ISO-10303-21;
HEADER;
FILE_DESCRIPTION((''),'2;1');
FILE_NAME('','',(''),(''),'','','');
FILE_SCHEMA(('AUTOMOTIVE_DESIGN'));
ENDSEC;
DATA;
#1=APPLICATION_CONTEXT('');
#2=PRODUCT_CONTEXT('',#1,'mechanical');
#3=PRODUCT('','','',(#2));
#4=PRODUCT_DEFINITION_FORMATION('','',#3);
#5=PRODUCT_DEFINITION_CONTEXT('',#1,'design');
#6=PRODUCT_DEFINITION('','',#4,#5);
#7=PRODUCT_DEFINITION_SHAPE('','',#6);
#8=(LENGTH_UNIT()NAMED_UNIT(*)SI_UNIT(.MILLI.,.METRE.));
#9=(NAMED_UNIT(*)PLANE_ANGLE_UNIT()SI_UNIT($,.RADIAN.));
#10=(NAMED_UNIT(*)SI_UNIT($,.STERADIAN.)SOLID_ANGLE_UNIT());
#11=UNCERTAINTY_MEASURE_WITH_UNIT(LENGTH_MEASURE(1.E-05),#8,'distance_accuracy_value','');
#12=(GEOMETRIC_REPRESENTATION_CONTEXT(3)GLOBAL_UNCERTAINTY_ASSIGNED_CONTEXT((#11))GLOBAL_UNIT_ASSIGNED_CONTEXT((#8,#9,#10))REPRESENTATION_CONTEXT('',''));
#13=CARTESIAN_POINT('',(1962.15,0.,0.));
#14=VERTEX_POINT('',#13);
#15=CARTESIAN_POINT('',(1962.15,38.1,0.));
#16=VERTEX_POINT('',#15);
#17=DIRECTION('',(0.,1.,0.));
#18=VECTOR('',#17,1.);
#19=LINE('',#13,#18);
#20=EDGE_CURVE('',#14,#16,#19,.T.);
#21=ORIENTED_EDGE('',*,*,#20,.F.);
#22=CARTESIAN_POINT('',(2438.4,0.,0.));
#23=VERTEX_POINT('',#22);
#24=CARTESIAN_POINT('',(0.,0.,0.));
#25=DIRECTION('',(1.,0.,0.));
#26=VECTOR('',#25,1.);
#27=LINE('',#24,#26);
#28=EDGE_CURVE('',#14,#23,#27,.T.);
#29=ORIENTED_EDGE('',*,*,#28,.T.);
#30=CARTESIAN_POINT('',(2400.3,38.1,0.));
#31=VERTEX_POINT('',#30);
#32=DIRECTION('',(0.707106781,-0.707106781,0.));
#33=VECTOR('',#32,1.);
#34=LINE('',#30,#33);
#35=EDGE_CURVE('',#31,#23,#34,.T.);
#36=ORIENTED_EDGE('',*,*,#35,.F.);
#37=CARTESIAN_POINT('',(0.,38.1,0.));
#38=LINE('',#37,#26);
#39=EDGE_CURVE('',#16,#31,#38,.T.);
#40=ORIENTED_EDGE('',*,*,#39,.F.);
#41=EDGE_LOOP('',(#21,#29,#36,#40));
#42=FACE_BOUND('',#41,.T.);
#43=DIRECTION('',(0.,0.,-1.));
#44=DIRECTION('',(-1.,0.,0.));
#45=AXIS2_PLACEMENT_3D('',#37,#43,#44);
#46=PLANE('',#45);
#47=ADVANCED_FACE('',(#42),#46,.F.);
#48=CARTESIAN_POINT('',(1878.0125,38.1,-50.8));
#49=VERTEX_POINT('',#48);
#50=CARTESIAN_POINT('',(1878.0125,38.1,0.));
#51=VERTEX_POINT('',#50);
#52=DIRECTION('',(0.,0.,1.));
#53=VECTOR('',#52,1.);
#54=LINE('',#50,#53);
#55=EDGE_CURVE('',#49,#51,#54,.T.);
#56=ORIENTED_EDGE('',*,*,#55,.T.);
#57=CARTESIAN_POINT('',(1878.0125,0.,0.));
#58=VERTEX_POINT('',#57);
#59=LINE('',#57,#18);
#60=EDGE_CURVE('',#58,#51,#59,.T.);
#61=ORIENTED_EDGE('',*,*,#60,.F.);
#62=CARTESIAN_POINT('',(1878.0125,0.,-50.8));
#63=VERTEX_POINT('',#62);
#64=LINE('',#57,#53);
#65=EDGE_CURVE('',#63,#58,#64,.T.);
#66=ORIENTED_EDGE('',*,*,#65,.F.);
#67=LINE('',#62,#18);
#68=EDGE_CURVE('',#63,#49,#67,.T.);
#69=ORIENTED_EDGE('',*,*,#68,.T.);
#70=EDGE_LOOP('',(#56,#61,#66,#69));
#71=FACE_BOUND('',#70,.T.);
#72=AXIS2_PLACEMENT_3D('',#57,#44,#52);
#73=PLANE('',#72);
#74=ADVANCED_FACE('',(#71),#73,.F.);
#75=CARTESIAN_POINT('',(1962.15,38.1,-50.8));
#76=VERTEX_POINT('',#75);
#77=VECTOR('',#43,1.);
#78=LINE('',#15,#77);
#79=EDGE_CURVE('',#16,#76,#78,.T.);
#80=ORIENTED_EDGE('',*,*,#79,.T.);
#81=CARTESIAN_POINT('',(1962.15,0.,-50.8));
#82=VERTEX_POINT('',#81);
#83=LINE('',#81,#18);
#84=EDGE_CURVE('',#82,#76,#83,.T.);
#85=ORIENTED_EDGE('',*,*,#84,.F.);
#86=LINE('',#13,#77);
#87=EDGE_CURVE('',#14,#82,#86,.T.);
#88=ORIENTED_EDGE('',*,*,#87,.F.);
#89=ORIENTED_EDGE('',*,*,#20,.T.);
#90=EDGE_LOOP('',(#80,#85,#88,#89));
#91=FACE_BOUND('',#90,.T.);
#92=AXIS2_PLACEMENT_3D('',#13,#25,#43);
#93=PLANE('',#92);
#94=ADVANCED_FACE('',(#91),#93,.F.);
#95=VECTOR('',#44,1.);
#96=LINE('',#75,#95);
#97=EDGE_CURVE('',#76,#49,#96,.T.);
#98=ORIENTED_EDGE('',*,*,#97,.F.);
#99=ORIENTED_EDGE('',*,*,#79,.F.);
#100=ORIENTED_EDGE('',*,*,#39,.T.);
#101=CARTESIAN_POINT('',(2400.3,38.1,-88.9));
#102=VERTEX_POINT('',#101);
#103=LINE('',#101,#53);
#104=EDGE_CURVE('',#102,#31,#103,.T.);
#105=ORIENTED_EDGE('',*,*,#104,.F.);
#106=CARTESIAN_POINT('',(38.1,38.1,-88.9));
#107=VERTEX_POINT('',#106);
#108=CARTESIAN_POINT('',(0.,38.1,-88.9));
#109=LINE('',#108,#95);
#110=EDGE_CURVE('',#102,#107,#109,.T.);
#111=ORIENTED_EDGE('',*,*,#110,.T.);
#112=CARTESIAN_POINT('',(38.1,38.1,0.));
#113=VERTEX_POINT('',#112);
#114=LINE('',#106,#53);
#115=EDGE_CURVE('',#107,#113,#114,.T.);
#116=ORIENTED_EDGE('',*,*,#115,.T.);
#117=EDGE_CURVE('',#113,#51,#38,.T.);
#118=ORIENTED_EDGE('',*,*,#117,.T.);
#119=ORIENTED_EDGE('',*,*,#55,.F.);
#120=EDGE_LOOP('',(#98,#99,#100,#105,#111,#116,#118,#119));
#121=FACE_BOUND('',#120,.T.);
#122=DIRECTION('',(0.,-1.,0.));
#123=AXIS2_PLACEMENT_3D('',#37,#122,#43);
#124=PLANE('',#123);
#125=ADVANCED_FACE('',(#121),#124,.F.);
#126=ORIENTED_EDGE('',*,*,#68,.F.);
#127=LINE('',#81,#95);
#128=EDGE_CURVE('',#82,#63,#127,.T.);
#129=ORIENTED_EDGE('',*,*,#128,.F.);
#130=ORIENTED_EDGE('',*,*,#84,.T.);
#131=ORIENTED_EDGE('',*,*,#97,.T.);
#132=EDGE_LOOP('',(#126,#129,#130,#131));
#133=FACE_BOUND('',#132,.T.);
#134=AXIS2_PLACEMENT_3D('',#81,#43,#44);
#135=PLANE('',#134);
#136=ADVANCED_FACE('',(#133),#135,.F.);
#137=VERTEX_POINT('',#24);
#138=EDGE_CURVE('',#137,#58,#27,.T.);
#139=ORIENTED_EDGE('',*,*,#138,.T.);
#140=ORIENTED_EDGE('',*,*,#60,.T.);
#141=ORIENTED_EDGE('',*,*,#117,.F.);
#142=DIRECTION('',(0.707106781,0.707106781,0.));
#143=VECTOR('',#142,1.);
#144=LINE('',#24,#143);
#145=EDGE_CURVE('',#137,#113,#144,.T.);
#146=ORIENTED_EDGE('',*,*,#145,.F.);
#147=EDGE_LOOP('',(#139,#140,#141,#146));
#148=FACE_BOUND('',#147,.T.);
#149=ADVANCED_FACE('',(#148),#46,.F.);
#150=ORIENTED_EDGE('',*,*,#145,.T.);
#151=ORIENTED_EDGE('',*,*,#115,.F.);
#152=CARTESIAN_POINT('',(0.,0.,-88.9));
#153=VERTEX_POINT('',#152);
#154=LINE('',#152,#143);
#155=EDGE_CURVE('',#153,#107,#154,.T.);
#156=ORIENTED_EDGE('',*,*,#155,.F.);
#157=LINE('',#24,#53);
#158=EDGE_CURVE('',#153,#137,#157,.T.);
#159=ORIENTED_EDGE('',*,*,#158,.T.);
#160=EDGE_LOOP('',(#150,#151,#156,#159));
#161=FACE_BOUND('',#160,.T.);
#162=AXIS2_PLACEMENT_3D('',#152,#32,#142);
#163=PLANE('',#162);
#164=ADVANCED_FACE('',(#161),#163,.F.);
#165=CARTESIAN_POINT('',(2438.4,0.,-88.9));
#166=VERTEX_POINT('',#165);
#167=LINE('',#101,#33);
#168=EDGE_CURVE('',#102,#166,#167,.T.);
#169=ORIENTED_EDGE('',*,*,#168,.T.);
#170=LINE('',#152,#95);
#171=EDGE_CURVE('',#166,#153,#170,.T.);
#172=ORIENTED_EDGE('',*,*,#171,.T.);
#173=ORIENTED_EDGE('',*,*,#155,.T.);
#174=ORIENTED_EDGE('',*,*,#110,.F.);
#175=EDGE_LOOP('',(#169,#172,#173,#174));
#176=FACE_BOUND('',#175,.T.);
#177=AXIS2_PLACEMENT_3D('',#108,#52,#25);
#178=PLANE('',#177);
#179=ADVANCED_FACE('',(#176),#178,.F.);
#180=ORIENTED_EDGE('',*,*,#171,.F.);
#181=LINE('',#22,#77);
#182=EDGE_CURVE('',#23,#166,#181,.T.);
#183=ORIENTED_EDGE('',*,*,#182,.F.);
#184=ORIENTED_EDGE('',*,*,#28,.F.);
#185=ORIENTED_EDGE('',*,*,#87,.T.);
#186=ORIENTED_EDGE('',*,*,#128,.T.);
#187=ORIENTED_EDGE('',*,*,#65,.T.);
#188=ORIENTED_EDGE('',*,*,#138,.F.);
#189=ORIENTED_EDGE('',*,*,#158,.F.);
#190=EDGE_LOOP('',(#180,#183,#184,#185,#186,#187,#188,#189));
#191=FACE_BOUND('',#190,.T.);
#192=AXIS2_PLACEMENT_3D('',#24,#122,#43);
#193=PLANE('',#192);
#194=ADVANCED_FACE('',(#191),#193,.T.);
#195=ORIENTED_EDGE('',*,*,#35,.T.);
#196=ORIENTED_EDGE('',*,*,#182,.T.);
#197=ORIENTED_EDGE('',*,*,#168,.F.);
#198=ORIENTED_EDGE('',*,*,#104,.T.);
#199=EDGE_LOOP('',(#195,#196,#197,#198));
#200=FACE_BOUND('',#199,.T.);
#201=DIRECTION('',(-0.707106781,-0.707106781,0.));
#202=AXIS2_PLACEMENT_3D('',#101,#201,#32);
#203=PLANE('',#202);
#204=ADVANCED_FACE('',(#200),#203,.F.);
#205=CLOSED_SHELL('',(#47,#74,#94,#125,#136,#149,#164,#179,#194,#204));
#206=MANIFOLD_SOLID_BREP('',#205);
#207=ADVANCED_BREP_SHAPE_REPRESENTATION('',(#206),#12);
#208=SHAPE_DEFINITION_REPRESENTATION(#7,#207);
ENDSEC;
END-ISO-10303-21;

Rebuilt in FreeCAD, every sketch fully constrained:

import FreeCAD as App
import Part
import Sketcher
Q = App.Units.Quantity


def add_polygon(sketch, points):
    """Adds a closed chain of lines whose ends are joined by coincident constraints."""
    first, n = sketch.GeometryCount, len(points)
    for a, b in zip(points, points[1:] + points[:1]):
        sketch.addGeometry(Part.LineSegment(App.Vector(*a, 0), App.Vector(*b, 0)), False)
    for i in range(n):
        sketch.addConstraint(Sketcher.Constraint("Coincident", first + i, 2, first + (i + 1) % n, 1))

doc = App.newDocument("Part")
body = doc.addObject("PartDesign::Body", "Body")

# Sketch on XZ plane
sketch1 = doc.addObject("Sketcher::SketchObject", "Sketch")
body.addObject(sketch1)
sketch1.AttachmentSupport = (doc.XZ_Plane, [""])
sketch1.MapMode = "FlatFace"
add_polygon(sketch1, [(0, -88.9), (0, 0), (2438.4, 0), (2438.4, -88.9)])  # lines 0-3
sketch1.addConstraint(Sketcher.Constraint("Vertical", 0))
sketch1.addConstraint(Sketcher.Constraint("Horizontal", 1))
sketch1.addConstraint(Sketcher.Constraint("Vertical", 2))
sketch1.addConstraint(Sketcher.Constraint("Horizontal", 3))
sketch1.addConstraint(Sketcher.Constraint("Coincident", 0, 2, -1, 1))
sketch1.addConstraint(Sketcher.Constraint("DistanceX", 1, 1, 1, 2, Q("96 in")))
sketch1.addConstraint(Sketcher.Constraint("DistanceY", 0, 1, 0, 2, Q("3.5 in")))
pad1 = doc.addObject("PartDesign::Pad", "Pad")
body.addObject(pad1)
pad1.Profile = sketch1
pad1.Length = Q("1.5 in")
pad1.Reversed = True

# Sketch on XY plane
sketch2 = doc.addObject("Sketcher::SketchObject", "Sketch001")
body.addObject(sketch2)
sketch2.AttachmentSupport = (doc.XY_Plane, [""])
sketch2.MapMode = "FlatFace"
add_polygon(sketch2, [(0, 0), (38.1, 38.1), (0, 38.1)])  # lines 0-2
add_polygon(sketch2, [(2438.4, 0), (2438.4, 38.1), (2400.3, 38.1)])  # lines 3-5
sketch2.addConstraint(Sketcher.Constraint("Horizontal", 1))
sketch2.addConstraint(Sketcher.Constraint("Vertical", 2))
sketch2.addConstraint(Sketcher.Constraint("Vertical", 3))
sketch2.addConstraint(Sketcher.Constraint("Horizontal", 4))
sketch2.addConstraint(Sketcher.Constraint("Coincident", 2, 2, -1, 1))
sketch2.addConstraint(Sketcher.Constraint("PointOnObject", 5, 2, -1))
sketch2.addConstraint(Sketcher.Constraint("Perpendicular", 0, 5))
sketch2.addConstraint(Sketcher.Constraint("Horizontal", 1, 2, 3, 2))
sketch2.addConstraint(Sketcher.Constraint("Equal", 1, 4))
sketch2.addConstraint(Sketcher.Constraint("DistanceX", 1, 2, 1, 1, Q("1.5 in")))
sketch2.addConstraint(Sketcher.Constraint("DistanceX", -1, 1, 3, 2, Q("96 in")))
pocket1 = doc.addObject("PartDesign::Pocket", "Pocket")
body.addObject(pocket1)
pocket1.Profile = sketch2
pocket1.Type = "ThroughAll"

# Sketch on XZ plane
sketch3 = doc.addObject("Sketcher::SketchObject", "Sketch002")
body.addObject(sketch3)
sketch3.AttachmentSupport = (doc.XZ_Plane, [""])
sketch3.MapMode = "FlatFace"
sketch3.AttachmentOffset = App.Placement(App.Vector(0, 0, -1.5 * 25.4), App.Rotation())
add_polygon(sketch3, [(1878.0125, -50.8), (1878.0125, 0), (1962.15, 0), (1962.15, -50.8)])  # lines 0-3
sketch3.addConstraint(Sketcher.Constraint("Vertical", 0))
sketch3.addConstraint(Sketcher.Constraint("Horizontal", 1))
sketch3.addConstraint(Sketcher.Constraint("Vertical", 2))
sketch3.addConstraint(Sketcher.Constraint("Horizontal", 3))
sketch3.addConstraint(Sketcher.Constraint("PointOnObject", 0, 2, -1))
sketch3.addConstraint(Sketcher.Constraint("DistanceY", 0, 1, 0, 2, Q("2 in")))
sketch3.addConstraint(Sketcher.Constraint("DistanceX", 1, 1, 1, 2, Q("3.3125 in")))
sketch3.addConstraint(Sketcher.Constraint("DistanceX", -1, 1, 1, 2, Q("77.25 in")))
pocket2 = doc.addObject("PartDesign::Pocket", "Pocket001")
body.addObject(pocket2)
pocket2.Profile = sketch3
pocket2.Type = "ThroughAll"
pocket2.Reversed = True

doc.recompute()
